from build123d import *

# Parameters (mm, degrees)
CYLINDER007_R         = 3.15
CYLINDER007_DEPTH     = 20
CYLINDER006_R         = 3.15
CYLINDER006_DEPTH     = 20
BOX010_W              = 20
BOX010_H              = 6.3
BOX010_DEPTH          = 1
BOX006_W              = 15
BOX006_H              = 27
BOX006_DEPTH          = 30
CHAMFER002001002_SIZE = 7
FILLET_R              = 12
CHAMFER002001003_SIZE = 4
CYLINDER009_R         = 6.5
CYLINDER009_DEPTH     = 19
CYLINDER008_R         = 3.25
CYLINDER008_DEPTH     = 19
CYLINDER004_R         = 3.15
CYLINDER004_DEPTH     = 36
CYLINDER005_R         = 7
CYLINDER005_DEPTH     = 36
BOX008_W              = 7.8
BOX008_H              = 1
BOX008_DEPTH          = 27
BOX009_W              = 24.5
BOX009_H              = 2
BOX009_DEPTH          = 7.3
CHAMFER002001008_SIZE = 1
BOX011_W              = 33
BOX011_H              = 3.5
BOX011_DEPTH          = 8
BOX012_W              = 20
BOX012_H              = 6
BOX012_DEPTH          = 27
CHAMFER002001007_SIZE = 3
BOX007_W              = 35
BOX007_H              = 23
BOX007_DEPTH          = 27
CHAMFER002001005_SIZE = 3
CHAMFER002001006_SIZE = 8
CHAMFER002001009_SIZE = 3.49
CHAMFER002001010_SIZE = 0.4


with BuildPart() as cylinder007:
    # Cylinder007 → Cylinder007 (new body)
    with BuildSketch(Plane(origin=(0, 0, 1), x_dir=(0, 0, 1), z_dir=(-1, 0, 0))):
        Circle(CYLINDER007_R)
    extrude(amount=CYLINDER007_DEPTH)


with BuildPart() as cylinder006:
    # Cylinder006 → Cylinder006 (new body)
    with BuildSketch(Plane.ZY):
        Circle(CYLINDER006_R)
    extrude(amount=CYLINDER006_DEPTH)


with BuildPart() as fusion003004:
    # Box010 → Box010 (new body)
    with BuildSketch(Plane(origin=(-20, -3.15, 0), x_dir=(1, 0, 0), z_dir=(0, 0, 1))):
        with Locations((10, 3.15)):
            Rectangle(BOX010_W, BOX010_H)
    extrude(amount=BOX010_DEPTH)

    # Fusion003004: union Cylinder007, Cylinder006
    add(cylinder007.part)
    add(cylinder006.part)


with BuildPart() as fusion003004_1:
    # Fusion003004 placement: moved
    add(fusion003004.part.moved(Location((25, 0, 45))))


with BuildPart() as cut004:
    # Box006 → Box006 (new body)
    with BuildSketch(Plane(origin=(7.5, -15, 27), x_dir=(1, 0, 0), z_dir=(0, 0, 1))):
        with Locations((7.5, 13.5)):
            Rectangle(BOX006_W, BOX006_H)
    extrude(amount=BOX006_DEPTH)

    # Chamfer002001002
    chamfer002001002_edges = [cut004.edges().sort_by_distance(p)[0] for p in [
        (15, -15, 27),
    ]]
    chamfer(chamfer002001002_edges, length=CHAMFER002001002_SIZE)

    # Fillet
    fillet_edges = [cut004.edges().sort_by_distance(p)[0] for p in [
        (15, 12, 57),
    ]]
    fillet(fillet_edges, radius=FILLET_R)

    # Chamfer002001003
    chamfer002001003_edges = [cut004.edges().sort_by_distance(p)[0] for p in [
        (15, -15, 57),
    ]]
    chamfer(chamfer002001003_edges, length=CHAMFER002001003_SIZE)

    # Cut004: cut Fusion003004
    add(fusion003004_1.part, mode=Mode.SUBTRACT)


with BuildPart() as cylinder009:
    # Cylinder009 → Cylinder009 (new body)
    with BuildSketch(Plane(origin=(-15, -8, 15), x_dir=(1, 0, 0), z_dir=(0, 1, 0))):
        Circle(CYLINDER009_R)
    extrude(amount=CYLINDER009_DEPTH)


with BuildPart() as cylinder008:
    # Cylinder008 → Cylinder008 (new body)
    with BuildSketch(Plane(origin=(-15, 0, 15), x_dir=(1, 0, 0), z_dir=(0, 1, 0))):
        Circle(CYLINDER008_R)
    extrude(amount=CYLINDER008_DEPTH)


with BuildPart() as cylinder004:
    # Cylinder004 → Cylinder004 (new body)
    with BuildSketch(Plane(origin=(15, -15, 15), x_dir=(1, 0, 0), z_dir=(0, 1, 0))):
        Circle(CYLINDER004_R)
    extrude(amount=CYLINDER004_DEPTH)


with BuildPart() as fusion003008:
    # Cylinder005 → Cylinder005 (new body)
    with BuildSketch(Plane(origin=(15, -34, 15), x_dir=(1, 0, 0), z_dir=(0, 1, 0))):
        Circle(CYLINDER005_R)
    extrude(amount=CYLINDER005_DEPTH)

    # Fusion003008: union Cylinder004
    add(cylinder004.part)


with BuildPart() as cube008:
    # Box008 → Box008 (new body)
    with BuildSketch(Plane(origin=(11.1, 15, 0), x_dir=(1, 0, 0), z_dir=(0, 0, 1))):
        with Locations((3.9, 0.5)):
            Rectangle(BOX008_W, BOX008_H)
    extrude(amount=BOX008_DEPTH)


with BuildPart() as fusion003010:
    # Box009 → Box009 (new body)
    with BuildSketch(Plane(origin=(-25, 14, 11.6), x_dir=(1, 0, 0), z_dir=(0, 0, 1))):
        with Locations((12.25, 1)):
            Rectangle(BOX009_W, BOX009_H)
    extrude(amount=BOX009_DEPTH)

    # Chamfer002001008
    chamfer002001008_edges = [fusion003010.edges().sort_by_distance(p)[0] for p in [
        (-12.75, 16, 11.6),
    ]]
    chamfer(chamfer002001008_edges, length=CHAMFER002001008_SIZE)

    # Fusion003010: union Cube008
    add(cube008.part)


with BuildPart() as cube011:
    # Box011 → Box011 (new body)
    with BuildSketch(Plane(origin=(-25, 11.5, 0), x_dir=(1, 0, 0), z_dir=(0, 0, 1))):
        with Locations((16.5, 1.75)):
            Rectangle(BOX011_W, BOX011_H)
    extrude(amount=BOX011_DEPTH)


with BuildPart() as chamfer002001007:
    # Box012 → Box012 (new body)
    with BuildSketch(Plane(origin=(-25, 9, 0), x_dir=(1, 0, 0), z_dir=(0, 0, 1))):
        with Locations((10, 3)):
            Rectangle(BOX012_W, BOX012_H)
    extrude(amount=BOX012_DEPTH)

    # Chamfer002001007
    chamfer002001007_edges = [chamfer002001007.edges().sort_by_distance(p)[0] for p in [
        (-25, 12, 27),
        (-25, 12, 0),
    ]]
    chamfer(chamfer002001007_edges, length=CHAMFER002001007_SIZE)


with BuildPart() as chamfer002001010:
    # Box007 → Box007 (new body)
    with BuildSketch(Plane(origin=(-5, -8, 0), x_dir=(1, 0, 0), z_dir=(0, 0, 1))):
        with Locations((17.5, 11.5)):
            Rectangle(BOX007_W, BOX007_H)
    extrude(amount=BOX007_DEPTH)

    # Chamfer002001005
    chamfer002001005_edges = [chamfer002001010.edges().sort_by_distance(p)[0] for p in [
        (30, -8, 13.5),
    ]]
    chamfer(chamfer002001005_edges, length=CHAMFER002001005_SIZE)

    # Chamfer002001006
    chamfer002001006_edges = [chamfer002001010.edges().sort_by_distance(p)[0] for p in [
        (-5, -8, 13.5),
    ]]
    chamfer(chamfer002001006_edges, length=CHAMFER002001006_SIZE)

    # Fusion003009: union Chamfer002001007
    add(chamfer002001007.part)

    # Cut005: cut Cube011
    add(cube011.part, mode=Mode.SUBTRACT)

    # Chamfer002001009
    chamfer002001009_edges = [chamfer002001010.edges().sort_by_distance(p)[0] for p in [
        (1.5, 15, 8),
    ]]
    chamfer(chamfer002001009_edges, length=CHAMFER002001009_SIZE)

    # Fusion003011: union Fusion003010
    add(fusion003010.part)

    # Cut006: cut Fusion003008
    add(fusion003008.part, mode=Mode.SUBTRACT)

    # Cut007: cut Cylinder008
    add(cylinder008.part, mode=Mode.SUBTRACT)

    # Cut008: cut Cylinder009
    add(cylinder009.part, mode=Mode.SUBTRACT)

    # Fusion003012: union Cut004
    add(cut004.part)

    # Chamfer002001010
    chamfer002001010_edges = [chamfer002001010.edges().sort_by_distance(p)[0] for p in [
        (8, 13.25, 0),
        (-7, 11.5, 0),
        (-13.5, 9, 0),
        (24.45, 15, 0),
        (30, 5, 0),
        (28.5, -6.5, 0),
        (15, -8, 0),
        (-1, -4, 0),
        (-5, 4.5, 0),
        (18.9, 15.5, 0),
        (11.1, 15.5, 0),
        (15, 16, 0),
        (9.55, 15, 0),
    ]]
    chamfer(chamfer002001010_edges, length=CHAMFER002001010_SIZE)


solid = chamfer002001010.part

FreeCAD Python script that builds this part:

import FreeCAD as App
import Part
import Sketcher

V = App.Vector
Q = App.Units.Quantity


def edges_at(feature, points):
    """Names of the edges that pass closest to the given points."""
    edges = feature.Shape.Edges
    near = lambda p: min(range(len(edges)), key=lambda i: edges[i].distToShape(Part.Vertex(*p))[0])
    return sorted({f"Edge{near(p) + 1}" for p in points})


def add_polygon(sketch, points):
    """Adds a closed chain of lines whose ends are joined by coincident constraints."""
    first, n = sketch.GeometryCount, len(points)
    for a, b in zip(points, points[1:] + points[:1]):
        sketch.addGeometry(Part.LineSegment(App.Vector(*a, 0), App.Vector(*b, 0)), False)
    for i in range(n):
        sketch.addConstraint(Sketcher.Constraint("Coincident", first + i, 2, first + (i + 1) % n, 1))

doc = App.newDocument("Part")
body = doc.addObject("PartDesign::Body", "Body")

# Sketch on YZ plane
sketch1 = doc.addObject("Sketcher::SketchObject", "Sketch")
body.addObject(sketch1)
sketch1.AttachmentSupport = (doc.YZ_Plane, [""])
sketch1.MapMode = "FlatFace"
sketch1.addGeometry(Part.Circle(V(0, 1, 0), V(0, 0, 1), 3.1), False)
sketch1.addConstraint([
    Sketcher.Constraint("PointOnObject", 0, 3, -2),
    Sketcher.Constraint("Diameter", 0, Q("6.3 mm")),
    Sketcher.Constraint("DistanceY", -1, 1, 0, 3, Q("1 mm")),
])
pad1 = doc.addObject("PartDesign::Pad", "Pad")
body.addObject(pad1)
pad1.Profile = sketch1
pad1.Length = 20
pad1.Reversed = True
body2 = doc.addObject("PartDesign::Body", "Body001")

# Sketch on YZ plane
sketch2 = doc.addObject("Sketcher::SketchObject", "Sketch001")
body2.addObject(sketch2)
sketch2.AttachmentSupport = (doc.getObject("YZ_Plane001"), [""])
sketch2.MapMode = "FlatFace"
sketch2.addGeometry(Part.Circle(V(0, 0, 0), V(0, 0, 1), 3.1), False)
sketch2.addConstraint([
    Sketcher.Constraint("Coincident", 0, 3, -1, 1),
    Sketcher.Constraint("Diameter", 0, Q("6.3 mm")),
])
pad2 = doc.addObject("PartDesign::Pad", "Pad001")
body2.addObject(pad2)
pad2.Profile = sketch2
pad2.Length = 20
pad2.Reversed = True
body3 = doc.addObject("PartDesign::Body", "Body002")

# Sketch on XY plane
sketch3 = doc.addObject("Sketcher::SketchObject", "Sketch002")
body3.addObject(sketch3)
sketch3.AttachmentSupport = (doc.getObject("XY_Plane002"), [""])
sketch3.MapMode = "FlatFace"
add_polygon(sketch3, [(-20, 3), (-20, -3), (0, -3), (0, 3)])  # lines 0-3
sketch3.addConstraint([
    Sketcher.Constraint("Vertical", 0),
    Sketcher.Constraint("Horizontal", 1),
    Sketcher.Constraint("Vertical", 2),
    Sketcher.Constraint("Horizontal", 3),
    Sketcher.Constraint("Symmetric", 1, 2, 2, 2, -1, 1),
    Sketcher.Constraint("DistanceX", 1, 1, 1, 2, Q("20 mm")),
    Sketcher.Constraint("DistanceY", 0, 2, 0, 1, Q("6.3 mm")),
])
pad3 = doc.addObject("PartDesign::Pad", "Pad002")
body3.addObject(pad3)
pad3.Profile = sketch3
pad3.Length = 1
doc.recompute()

boolean = doc.addObject("PartDesign::Boolean", "Boolean")
body3.addObject(boolean)
boolean.Type = "Fuse"
boolean.addObjects([body])
doc.recompute()

boolean2 = doc.addObject("PartDesign::Boolean", "Boolean001")
body3.addObject(boolean2)
boolean2.Type = "Fuse"
boolean2.addObjects([body2])
body4 = doc.addObject("PartDesign::Body", "Body003")
doc.recompute()

body3.Placement = App.Placement(V(25, 0, 45), App.Rotation(V(0, 0, 1), 0))
boolean3 = doc.addObject("PartDesign::Boolean", "Boolean002")
body4.addObject(boolean3)
boolean3.Type = "Fuse"
boolean3.addObjects([body3])
body5 = doc.addObject("PartDesign::Body", "Body004")

# Sketch on XY plane
sketch4 = doc.addObject("Sketcher::SketchObject", "Sketch003")
body5.addObject(sketch4)
sketch4.AttachmentSupport = (doc.getObject("XY_Plane004"), [""])
sketch4.MapMode = "FlatFace"
sketch4.AttachmentOffset = App.Placement(V(0, 0, 27), App.Rotation())
add_polygon(sketch4, [(8, 12), (8, -15), (22, -15), (22, 12)])  # lines 0-3
sketch4.addConstraint([
    Sketcher.Constraint("Vertical", 0),
    Sketcher.Constraint("Horizontal", 1),
    Sketcher.Constraint("Vertical", 2),
    Sketcher.Constraint("Horizontal", 3),
    Sketcher.Constraint("DistanceX", 1, 1, 1, 2, Q("15 mm")),
    Sketcher.Constraint("DistanceY", 0, 2, 0, 1, Q("27 mm")),
    Sketcher.Constraint("DistanceY", 0, 2, -1, 1, Q("15 mm")),
    Sketcher.Constraint("DistanceX", -1, 1, 0, 2, Q("7.5 mm")),
])
pad4 = doc.addObject("PartDesign::Pad", "Pad003")
body5.addObject(pad4)
pad4.Profile = sketch4
pad4.Length = 30
doc.recompute()

chamfer = doc.addObject("PartDesign::Chamfer", "Chamfer")
body5.addObject(chamfer)
chamfer.Base = (pad4, edges_at(pad4, [(15, -15, 27)]))
chamfer.Size = 7
doc.recompute()

fillet = doc.addObject("PartDesign::Fillet", "Fillet")
body5.addObject(fillet)
fillet.Base = (chamfer, edges_at(chamfer, [(15, 12, 57)]))
fillet.Radius = 12
doc.recompute()

chamfer2 = doc.addObject("PartDesign::Chamfer", "Chamfer001")
body5.addObject(chamfer2)
chamfer2.Base = (fillet, edges_at(fillet, [(15, -15, 57)]))
chamfer2.Size = 4
doc.recompute()

boolean4 = doc.addObject("PartDesign::Boolean", "Boolean003")
body5.addObject(boolean4)
boolean4.Type = "Cut"
boolean4.addObjects([body4])
body6 = doc.addObject("PartDesign::Body", "Body005")

# Sketch on XZ plane
sketch5 = doc.addObject("Sketcher::SketchObject", "Sketch004")
body6.addObject(sketch5)
sketch5.AttachmentSupport = (doc.getObject("XZ_Plane005"), [""])
sketch5.MapMode = "FlatFace"
sketch5.AttachmentOffset = App.Placement(V(0, 0, 8), App.Rotation())
sketch5.addGeometry(Part.Circle(V(-15, 15, 0), V(0, 0, 1), 6), False)
sketch5.addConstraint([
    Sketcher.Constraint("Diameter", 0, Q("13 mm")),
    Sketcher.Constraint("DistanceX", 0, 3, -1, 1, Q("15 mm")),
    Sketcher.Constraint("DistanceY", -1, 1, 0, 3, Q("15 mm")),
])
pad5 = doc.addObject("PartDesign::Pad", "Pad004")
body6.addObject(pad5)
pad5.Profile = sketch5
pad5.Length = 19
pad5.Reversed = True
body7 = doc.addObject("PartDesign::Body", "Body006")

# Sketch on XZ plane
sketch6 = doc.addObject("Sketcher::SketchObject", "Sketch005")
body7.addObject(sketch6)
sketch6.AttachmentSupport = (doc.getObject("XZ_Plane006"), [""])
sketch6.MapMode = "FlatFace"
sketch6.addGeometry(Part.Circle(V(-15, 15, 0), V(0, 0, 1), 3.2), False)
sketch6.addConstraint([
    Sketcher.Constraint("Diameter", 0, Q("6.5 mm")),
    Sketcher.Constraint("DistanceX", 0, 3, -1, 1, Q("15 mm")),
    Sketcher.Constraint("DistanceY", -1, 1, 0, 3, Q("15 mm")),
])
pad6 = doc.addObject("PartDesign::Pad", "Pad005")
body7.addObject(pad6)
pad6.Profile = sketch6
pad6.Length = 19
pad6.Reversed = True
body8 = doc.addObject("PartDesign::Body", "Body007")

# Sketch on XZ plane
sketch7 = doc.addObject("Sketcher::SketchObject", "Sketch006")
body8.addObject(sketch7)
sketch7.AttachmentSupport = (doc.getObject("XZ_Plane007"), [""])
sketch7.MapMode = "FlatFace"
sketch7.AttachmentOffset = App.Placement(V(0, 0, 15), App.Rotation())
sketch7.addGeometry(Part.Circle(V(15, 15, 0), V(0, 0, 1), 3.1), False)
sketch7.addConstraint([
    Sketcher.Constraint("Diameter", 0, Q("6.3 mm")),
    Sketcher.Constraint("DistanceX", -1, 1, 0, 3, Q("15 mm")),
    Sketcher.Constraint("DistanceY", -1, 1, 0, 3, Q("15 mm")),
])
pad7 = doc.addObject("PartDesign::Pad", "Pad006")
body8.addObject(pad7)
pad7.Profile = sketch7
pad7.Length = 36
pad7.Reversed = True
body9 = doc.addObject("PartDesign::Body", "Body008")

# Sketch on XZ plane
sketch8 = doc.addObject("Sketcher::SketchObject", "Sketch007")
body9.addObject(sketch8)
sketch8.AttachmentSupport = (doc.getObject("XZ_Plane008"), [""])
sketch8.MapMode = "FlatFace"
sketch8.AttachmentOffset = App.Placement(V(0, 0, 34), App.Rotation())
sketch8.addGeometry(Part.Circle(V(15, 15, 0), V(0, 0, 1), 7), False)
sketch8.addConstraint([
    Sketcher.Constraint("Diameter", 0, Q("14 mm")),
    Sketcher.Constraint("DistanceX", -1, 1, 0, 3, Q("15 mm")),
    Sketcher.Constraint("DistanceY", -1, 1, 0, 3, Q("15 mm")),
])
pad8 = doc.addObject("PartDesign::Pad", "Pad007")
body9.addObject(pad8)
pad8.Profile = sketch8
pad8.Length = 36
pad8.Reversed = True
doc.recompute()

boolean5 = doc.addObject("PartDesign::Boolean", "Boolean004")
body9.addObject(boolean5)
boolean5.Type = "Fuse"
boolean5.addObjects([body8])
body10 = doc.addObject("PartDesign::Body", "Body009")

# Sketch on XY plane
sketch9 = doc.addObject("Sketcher::SketchObject", "Sketch008")
body10.addObject(sketch9)
sketch9.AttachmentSupport = (doc.getObject("XY_Plane009"), [""])
sketch9.MapMode = "FlatFace"
add_polygon(sketch9, [(11.1, 16), (11.1, 15), (18.9, 15), (18.9, 16)])  # lines 0-3
sketch9.addConstraint([
    Sketcher.Constraint("Vertical", 0),
    Sketcher.Constraint("Horizontal", 1),
    Sketcher.Constraint("Vertical", 2),
    Sketcher.Constraint("Horizontal", 3),
    Sketcher.Constraint("DistanceY", 0, 2, 0, 1, Q("1 mm")),
    Sketcher.Constraint("DistanceX", 1, 1, 1, 2, Q("7.8 mm")),
    Sketcher.Constraint("DistanceY", -1, 1, 0, 2, Q("15 mm")),
    Sketcher.Constraint("DistanceX", -1, 1, 0, 2, Q("11.1 mm")),
])
pad9 = doc.addObject("PartDesign::Pad", "Pad008")
body10.addObject(pad9)
pad9.Profile = sketch9
pad9.Length = 27
body11 = doc.addObject("PartDesign::Body", "Body010")
body11.AllowCompound = True

# Sketch on XY plane
sketch10 = doc.addObject("Sketcher::SketchObject", "Sketch009")
body11.addObject(sketch10)
sketch10.AttachmentSupport = (doc.getObject("XY_Plane010"), [""])
sketch10.MapMode = "FlatFace"
sketch10.AttachmentOffset = App.Placement(V(0, 0, 11.6), App.Rotation())
add_polygon(sketch10, [(-25, 16), (-25, 14), (-0.5, 14), (-0.5, 16)])  # lines 0-3
sketch10.addConstraint([
    Sketcher.Constraint("Vertical", 0),
    Sketcher.Constraint("Horizontal", 1),
    Sketcher.Constraint("Vertical", 2),
    Sketcher.Constraint("Horizontal", 3),
    Sketcher.Constraint("DistanceY", 0, 2, 0, 1, Q("2 mm")),
    Sketcher.Constraint("DistanceX", 1, 1, 1, 2, Q("24.5 mm")),
    Sketcher.Constraint("DistanceX", 0, 2, -1, 1, Q("25 mm")),
    Sketcher.Constraint("DistanceY", -1, 1, 0, 2, Q("14 mm")),
])
pad10 = doc.addObject("PartDesign::Pad", "Pad009")
body11.addObject(pad10)
pad10.Profile = sketch10
pad10.Length = 7.3
doc.recompute()

chamfer3 = doc.addObject("PartDesign::Chamfer", "Chamfer002")
body11.addObject(chamfer3)
chamfer3.Base = (pad10, edges_at(pad10, [(-12.75, 16, 11.6)]))
chamfer3.Size = 1
doc.recompute()

boolean6 = doc.addObject("PartDesign::Boolean", "Boolean005")
body11.addObject(boolean6)
boolean6.Type = "Fuse"
boolean6.addObjects([body10])
body12 = doc.addObject("PartDesign::Body", "Body011")

# Sketch on XY plane
sketch11 = doc.addObject("Sketcher::SketchObject", "Sketch010")
body12.addObject(sketch11)
sketch11.AttachmentSupport = (doc.getObject("XY_Plane011"), [""])
sketch11.MapMode = "FlatFace"
add_polygon(sketch11, [(-25, 15), (-25, 11.5), (8, 11.5), (8, 15)])  # lines 0-3
sketch11.addConstraint([
    Sketcher.Constraint("Vertical", 0),
    Sketcher.Constraint("Horizontal", 1),
    Sketcher.Constraint("Vertical", 2),
    Sketcher.Constraint("Horizontal", 3),
    Sketcher.Constraint("DistanceX", 1, 1, 1, 2, Q("33 mm")),
    Sketcher.Constraint("DistanceY", 0, 2, 0, 1, Q("3.5 mm")),
    Sketcher.Constraint("DistanceX", 0, 2, -1, 1, Q("25 mm")),
    Sketcher.Constraint("DistanceY", -1, 1, 2, 2, Q("15 mm")),
])
pad11 = doc.addObject("PartDesign::Pad", "Pad010")
body12.addObject(pad11)
pad11.Profile = sketch11
pad11.Length = 8
body13 = doc.addObject("PartDesign::Body", "Body012")

# Sketch on XY plane
sketch12 = doc.addObject("Sketcher::SketchObject", "Sketch011")
body13.addObject(sketch12)
sketch12.AttachmentSupport = (doc.getObject("XY_Plane012"), [""])
sketch12.MapMode = "FlatFace"
add_polygon(sketch12, [(-25, 15), (-25, 9), (-5, 9), (-5, 15)])  # lines 0-3
sketch12.addConstraint([
    Sketcher.Constraint("Vertical", 0),
    Sketcher.Constraint("Horizontal", 1),
    Sketcher.Constraint("Vertical", 2),
    Sketcher.Constraint("Horizontal", 3),
    Sketcher.Constraint("DistanceX", 1, 1, 1, 2, Q("20 mm")),
    Sketcher.Constraint("DistanceY", 0, 2, 0, 1, Q("6 mm")),
    Sketcher.Constraint("DistanceX", 0, 2, -1, 1, Q("25 mm")),
    Sketcher.Constraint("DistanceY", -1, 1, 0, 2, Q("9 mm")),
])
pad12 = doc.addObject("PartDesign::Pad", "Pad011")
body13.addObject(pad12)
pad12.Profile = sketch12
pad12.Length = 27
doc.recompute()

chamfer4 = doc.addObject("PartDesign::Chamfer", "Chamfer003")
body13.addObject(chamfer4)
chamfer4.Base = (pad12, edges_at(pad12, [(-25, 12, 27), (-25, 12, 0)]))
chamfer4.Size = 3
body14 = doc.addObject("PartDesign::Body", "Body013")

# Sketch on XY plane
sketch13 = doc.addObject("Sketcher::SketchObject", "Sketch012")
body14.addObject(sketch13)
sketch13.AttachmentSupport = (doc.getObject("XY_Plane013"), [""])
sketch13.MapMode = "FlatFace"
add_polygon(sketch13, [(-5, 15), (-5, -8), (30, -8), (30, 15)])  # lines 0-3
sketch13.addConstraint([
    Sketcher.Constraint("Vertical", 0),
    Sketcher.Constraint("Horizontal", 1),
    Sketcher.Constraint("Vertical", 2),
    Sketcher.Constraint("Horizontal", 3),
    Sketcher.Constraint("DistanceX", 1, 1, 1, 2, Q("35 mm")),
    Sketcher.Constraint("DistanceY", 0, 2, 0, 1, Q("23 mm")),
    Sketcher.Constraint("DistanceX", 0, 2, -1, 1, Q("5 mm")),
    Sketcher.Constraint("DistanceY", 0, 2, -1, 1, Q("8 mm")),
])
pad13 = doc.addObject("PartDesign::Pad", "Pad012")
body14.addObject(pad13)
pad13.Profile = sketch13
pad13.Length = 27
doc.recompute()

chamfer5 = doc.addObject("PartDesign::Chamfer", "Chamfer004")
body14.addObject(chamfer5)
chamfer5.Base = (pad13, edges_at(pad13, [(30, -8, 13.5)]))
chamfer5.Size = 3
doc.recompute()

chamfer6 = doc.addObject("PartDesign::Chamfer", "Chamfer005")
body14.addObject(chamfer6)
chamfer6.Base = (chamfer5, edges_at(chamfer5, [(-5, -8, 13.5)]))
chamfer6.Size = 8
doc.recompute()

boolean7 = doc.addObject("PartDesign::Boolean", "Boolean006")
body14.addObject(boolean7)
boolean7.Type = "Fuse"
boolean7.addObjects([body13])
doc.recompute()

boolean8 = doc.addObject("PartDesign::Boolean", "Boolean007")
body14.addObject(boolean8)
boolean8.Type = "Cut"
boolean8.addObjects([body12])
doc.recompute()

chamfer7 = doc.addObject("PartDesign::Chamfer", "Chamfer006")
body14.addObject(chamfer7)
chamfer7.Base = (boolean8, edges_at(boolean8, [(-8.5, 15, 8)]))
chamfer7.Size = 3.49
doc.recompute()

boolean9 = doc.addObject("PartDesign::Boolean", "Boolean008")
body14.addObject(boolean9)
boolean9.Type = "Fuse"
boolean9.addObjects([body11])
doc.recompute()

boolean10 = doc.addObject("PartDesign::Boolean", "Boolean009")
body14.addObject(boolean10)
boolean10.Type = "Cut"
boolean10.addObjects([body9])
doc.recompute()

boolean11 = doc.addObject("PartDesign::Boolean", "Boolean010")
body14.addObject(boolean11)
boolean11.Type = "Cut"
boolean11.addObjects([body7])
doc.recompute()

boolean12 = doc.addObject("PartDesign::Boolean", "Boolean011")
body14.addObject(boolean12)
boolean12.Type = "Cut"
boolean12.addObjects([body6])
doc.recompute()

boolean13 = doc.addObject("PartDesign::Boolean", "Boolean012")
body14.addObject(boolean13)
boolean13.Type = "Fuse"
boolean13.addObjects([body5])
doc.recompute()

chamfer8 = doc.addObject("PartDesign::Chamfer", "Chamfer007")
body14.addObject(chamfer8)
chamfer8.Base = (boolean13, edges_at(boolean13, [
    (8, 13.25, 0),
    (-7, 11.5, 0),
    (-13.5, 9, 0),
    (24.45, 15, 0),
    (30, 5, 0),
    (28.5, -6.5, 0),
    (15, -8, 0),
    (-1, -4, 0),
    (-5, 4.5, 0),
    (18.9, 15.5, 0),
    (11.1, 15.5, 0),
    (15, 16, 0),
    (9.55, 15, 0),
]))
chamfer8.Size = 0.4

doc.recompute()
